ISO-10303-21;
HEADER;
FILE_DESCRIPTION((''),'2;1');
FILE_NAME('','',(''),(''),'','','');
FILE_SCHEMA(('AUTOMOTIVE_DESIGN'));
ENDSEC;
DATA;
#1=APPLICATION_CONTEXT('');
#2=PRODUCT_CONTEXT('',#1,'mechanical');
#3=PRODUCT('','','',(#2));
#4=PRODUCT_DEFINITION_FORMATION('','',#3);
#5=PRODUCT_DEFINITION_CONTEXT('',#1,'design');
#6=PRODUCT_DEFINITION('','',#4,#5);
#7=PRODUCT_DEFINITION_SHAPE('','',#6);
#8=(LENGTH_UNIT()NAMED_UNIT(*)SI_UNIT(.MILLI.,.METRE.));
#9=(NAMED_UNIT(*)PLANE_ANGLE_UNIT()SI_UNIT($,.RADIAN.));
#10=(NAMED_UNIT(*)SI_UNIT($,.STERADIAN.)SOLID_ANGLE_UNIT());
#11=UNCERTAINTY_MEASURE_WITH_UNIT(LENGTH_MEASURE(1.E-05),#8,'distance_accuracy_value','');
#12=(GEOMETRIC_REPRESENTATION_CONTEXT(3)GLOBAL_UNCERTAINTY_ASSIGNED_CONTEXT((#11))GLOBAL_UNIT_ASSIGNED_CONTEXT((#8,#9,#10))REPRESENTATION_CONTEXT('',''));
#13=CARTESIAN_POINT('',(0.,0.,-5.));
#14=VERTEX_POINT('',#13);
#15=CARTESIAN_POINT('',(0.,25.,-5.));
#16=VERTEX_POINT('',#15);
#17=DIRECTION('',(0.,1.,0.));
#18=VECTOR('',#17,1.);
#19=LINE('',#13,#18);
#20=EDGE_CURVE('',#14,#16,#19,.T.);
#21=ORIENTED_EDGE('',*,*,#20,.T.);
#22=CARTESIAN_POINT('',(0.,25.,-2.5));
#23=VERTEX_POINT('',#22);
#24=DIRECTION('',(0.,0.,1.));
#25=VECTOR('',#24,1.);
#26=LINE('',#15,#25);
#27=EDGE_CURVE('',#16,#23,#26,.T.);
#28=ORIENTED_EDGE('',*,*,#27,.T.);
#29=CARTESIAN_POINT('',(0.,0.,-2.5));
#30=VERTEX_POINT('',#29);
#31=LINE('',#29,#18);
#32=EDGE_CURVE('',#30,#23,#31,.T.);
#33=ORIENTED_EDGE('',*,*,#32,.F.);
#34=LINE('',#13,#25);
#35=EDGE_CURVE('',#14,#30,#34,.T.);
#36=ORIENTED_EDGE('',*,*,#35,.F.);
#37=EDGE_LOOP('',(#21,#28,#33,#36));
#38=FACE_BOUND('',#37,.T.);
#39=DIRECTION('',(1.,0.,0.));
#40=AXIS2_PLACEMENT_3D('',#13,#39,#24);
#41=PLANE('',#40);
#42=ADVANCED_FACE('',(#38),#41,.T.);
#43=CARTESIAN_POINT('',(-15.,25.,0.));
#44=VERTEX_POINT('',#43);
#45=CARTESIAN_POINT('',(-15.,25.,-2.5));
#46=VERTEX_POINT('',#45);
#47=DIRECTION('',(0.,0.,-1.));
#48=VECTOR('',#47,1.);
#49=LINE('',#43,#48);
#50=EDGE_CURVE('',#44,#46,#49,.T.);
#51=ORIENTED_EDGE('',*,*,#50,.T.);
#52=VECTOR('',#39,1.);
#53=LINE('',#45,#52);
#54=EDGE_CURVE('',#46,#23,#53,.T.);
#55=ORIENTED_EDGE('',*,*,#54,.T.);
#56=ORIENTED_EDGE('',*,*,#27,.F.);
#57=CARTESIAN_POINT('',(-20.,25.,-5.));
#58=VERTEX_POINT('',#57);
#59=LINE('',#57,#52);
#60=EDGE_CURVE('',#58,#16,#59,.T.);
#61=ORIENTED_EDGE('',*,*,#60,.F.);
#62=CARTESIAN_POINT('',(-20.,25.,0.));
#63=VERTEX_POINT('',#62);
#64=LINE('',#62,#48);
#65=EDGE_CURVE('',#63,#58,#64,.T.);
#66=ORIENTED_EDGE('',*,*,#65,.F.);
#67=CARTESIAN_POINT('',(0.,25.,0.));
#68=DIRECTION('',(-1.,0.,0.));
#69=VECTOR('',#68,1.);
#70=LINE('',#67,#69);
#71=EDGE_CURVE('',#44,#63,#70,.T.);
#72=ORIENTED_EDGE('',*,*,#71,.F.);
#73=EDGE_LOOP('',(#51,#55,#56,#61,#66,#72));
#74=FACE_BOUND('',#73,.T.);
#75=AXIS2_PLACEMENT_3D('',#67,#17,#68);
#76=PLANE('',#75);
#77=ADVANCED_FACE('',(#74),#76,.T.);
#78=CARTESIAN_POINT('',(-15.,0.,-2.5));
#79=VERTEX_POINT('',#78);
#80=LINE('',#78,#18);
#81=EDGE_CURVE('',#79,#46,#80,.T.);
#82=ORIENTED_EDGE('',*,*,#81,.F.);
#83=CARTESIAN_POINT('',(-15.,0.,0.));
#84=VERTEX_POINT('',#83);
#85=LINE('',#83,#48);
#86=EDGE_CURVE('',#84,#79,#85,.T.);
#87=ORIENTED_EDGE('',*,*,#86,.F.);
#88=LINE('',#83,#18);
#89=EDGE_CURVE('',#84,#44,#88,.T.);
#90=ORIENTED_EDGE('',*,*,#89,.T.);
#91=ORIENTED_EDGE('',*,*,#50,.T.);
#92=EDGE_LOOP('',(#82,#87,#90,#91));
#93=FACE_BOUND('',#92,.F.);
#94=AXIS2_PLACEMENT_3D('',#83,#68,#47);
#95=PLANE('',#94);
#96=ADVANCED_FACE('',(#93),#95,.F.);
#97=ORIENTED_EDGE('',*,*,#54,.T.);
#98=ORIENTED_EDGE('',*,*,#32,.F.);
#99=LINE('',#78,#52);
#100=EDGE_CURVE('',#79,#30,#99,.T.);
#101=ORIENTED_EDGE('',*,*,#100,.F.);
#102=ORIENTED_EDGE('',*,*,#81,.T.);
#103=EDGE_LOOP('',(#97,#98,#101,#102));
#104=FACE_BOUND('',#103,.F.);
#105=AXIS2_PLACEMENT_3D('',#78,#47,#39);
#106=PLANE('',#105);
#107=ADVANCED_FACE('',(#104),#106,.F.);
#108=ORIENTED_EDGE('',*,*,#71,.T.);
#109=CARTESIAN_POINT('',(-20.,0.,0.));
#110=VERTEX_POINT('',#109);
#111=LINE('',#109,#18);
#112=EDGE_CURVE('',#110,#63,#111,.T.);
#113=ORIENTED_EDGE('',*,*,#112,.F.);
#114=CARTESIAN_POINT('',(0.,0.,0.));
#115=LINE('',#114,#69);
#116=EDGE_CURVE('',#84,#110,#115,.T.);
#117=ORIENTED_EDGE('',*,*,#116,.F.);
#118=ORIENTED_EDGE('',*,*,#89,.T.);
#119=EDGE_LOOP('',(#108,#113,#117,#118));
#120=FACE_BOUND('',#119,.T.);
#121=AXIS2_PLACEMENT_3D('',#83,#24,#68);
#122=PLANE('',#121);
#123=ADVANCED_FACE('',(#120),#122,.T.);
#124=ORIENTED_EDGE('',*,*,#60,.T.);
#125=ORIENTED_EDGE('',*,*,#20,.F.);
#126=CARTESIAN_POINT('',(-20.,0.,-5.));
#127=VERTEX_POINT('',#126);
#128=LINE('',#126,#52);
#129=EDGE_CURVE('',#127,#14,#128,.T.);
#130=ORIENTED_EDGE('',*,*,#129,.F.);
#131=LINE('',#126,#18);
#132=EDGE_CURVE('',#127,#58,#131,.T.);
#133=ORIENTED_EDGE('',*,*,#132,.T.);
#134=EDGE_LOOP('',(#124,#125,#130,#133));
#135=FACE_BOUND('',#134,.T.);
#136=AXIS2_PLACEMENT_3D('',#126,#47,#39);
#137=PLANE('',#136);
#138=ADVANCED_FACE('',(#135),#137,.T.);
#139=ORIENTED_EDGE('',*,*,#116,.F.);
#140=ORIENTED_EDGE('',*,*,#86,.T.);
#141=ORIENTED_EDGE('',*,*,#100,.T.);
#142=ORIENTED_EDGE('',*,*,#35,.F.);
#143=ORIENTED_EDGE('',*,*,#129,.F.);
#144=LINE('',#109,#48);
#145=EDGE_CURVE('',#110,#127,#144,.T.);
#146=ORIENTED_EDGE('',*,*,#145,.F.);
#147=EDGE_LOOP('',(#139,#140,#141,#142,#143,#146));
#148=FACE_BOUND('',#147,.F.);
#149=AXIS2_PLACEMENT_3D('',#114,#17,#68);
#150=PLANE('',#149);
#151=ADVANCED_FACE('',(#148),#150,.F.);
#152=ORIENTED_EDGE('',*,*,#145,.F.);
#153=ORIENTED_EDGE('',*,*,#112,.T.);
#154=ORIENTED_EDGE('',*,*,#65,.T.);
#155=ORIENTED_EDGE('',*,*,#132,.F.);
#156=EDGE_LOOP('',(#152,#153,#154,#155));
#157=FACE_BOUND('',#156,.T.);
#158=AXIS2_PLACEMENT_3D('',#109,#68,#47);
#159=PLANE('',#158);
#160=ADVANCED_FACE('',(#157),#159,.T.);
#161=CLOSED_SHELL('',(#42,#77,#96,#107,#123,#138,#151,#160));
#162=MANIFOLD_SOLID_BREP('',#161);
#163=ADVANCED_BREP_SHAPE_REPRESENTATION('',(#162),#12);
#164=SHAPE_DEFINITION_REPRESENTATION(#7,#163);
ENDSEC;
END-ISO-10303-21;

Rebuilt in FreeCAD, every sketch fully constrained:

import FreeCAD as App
import Part
import Sketcher
from FreeCAD import Vector

doc = App.newDocument("Part")
body = doc.addObject("PartDesign::Body", "Body")

# Sketch on XZ plane
sketch1 = body.newObject("Sketcher::SketchObject", "Sketch")
sketch1.AttachmentSupport = (doc.getObject("XZ_Plane"), [""])
sketch1.MapMode = "FlatFace"
sketch1.addGeometry([
    Part.LineSegment(Vector(-20, 0, 0), Vector(-15, 0, 0)),  # 0
    Part.LineSegment(Vector(-15, 0, 0), Vector(-15, -2.5, 0)),  # 1
    Part.LineSegment(Vector(-15, -2.5, 0), Vector(0, -2.5, 0)),  # 2
    Part.LineSegment(Vector(0, -2.5, 0), Vector(0, -5, 0)),  # 3
    Part.LineSegment(Vector(0, -5, 0), Vector(-20, -5, 0)),  # 4
    Part.LineSegment(Vector(-20, -5, 0), Vector(-20, 0, 0)),  # 5
], False)
sketch1.addConstraint([
    Sketcher.Constraint("Coincident", 0, 2, 1, 1),
    Sketcher.Constraint("Coincident", 1, 2, 2, 1),
    Sketcher.Constraint("Coincident", 2, 2, 3, 1),
    Sketcher.Constraint("Coincident", 3, 2, 4, 1),
    Sketcher.Constraint("Coincident", 4, 2, 5, 1),
    Sketcher.Constraint("Coincident", 5, 2, 0, 1),
    Sketcher.Constraint("Horizontal", 0),
    Sketcher.Constraint("Vertical", 1),
    Sketcher.Constraint("Horizontal", 2),
    Sketcher.Constraint("Vertical", 3),
    Sketcher.Constraint("Horizontal", 4),
    Sketcher.Constraint("Vertical", 5),
    Sketcher.Constraint("PointOnObject", 0, 2, -1),
    Sketcher.Constraint("PointOnObject", 2, 2, -2),
    Sketcher.Constraint("Equal", 1, 3),
    Sketcher.Constraint("Equal", 0, 5),
    Sketcher.Constraint("DistanceX", 0, 1, 0, 2, 5.0),
    Sketcher.Constraint("DistanceX", 2, 1, 2, 2, 15.0),
])
pad1 = body.newObject("PartDesign::Pad", "Pad")
pad1.Profile = sketch1
pad1.Length = 25
pad1.Reversed = True

doc.recompute()
